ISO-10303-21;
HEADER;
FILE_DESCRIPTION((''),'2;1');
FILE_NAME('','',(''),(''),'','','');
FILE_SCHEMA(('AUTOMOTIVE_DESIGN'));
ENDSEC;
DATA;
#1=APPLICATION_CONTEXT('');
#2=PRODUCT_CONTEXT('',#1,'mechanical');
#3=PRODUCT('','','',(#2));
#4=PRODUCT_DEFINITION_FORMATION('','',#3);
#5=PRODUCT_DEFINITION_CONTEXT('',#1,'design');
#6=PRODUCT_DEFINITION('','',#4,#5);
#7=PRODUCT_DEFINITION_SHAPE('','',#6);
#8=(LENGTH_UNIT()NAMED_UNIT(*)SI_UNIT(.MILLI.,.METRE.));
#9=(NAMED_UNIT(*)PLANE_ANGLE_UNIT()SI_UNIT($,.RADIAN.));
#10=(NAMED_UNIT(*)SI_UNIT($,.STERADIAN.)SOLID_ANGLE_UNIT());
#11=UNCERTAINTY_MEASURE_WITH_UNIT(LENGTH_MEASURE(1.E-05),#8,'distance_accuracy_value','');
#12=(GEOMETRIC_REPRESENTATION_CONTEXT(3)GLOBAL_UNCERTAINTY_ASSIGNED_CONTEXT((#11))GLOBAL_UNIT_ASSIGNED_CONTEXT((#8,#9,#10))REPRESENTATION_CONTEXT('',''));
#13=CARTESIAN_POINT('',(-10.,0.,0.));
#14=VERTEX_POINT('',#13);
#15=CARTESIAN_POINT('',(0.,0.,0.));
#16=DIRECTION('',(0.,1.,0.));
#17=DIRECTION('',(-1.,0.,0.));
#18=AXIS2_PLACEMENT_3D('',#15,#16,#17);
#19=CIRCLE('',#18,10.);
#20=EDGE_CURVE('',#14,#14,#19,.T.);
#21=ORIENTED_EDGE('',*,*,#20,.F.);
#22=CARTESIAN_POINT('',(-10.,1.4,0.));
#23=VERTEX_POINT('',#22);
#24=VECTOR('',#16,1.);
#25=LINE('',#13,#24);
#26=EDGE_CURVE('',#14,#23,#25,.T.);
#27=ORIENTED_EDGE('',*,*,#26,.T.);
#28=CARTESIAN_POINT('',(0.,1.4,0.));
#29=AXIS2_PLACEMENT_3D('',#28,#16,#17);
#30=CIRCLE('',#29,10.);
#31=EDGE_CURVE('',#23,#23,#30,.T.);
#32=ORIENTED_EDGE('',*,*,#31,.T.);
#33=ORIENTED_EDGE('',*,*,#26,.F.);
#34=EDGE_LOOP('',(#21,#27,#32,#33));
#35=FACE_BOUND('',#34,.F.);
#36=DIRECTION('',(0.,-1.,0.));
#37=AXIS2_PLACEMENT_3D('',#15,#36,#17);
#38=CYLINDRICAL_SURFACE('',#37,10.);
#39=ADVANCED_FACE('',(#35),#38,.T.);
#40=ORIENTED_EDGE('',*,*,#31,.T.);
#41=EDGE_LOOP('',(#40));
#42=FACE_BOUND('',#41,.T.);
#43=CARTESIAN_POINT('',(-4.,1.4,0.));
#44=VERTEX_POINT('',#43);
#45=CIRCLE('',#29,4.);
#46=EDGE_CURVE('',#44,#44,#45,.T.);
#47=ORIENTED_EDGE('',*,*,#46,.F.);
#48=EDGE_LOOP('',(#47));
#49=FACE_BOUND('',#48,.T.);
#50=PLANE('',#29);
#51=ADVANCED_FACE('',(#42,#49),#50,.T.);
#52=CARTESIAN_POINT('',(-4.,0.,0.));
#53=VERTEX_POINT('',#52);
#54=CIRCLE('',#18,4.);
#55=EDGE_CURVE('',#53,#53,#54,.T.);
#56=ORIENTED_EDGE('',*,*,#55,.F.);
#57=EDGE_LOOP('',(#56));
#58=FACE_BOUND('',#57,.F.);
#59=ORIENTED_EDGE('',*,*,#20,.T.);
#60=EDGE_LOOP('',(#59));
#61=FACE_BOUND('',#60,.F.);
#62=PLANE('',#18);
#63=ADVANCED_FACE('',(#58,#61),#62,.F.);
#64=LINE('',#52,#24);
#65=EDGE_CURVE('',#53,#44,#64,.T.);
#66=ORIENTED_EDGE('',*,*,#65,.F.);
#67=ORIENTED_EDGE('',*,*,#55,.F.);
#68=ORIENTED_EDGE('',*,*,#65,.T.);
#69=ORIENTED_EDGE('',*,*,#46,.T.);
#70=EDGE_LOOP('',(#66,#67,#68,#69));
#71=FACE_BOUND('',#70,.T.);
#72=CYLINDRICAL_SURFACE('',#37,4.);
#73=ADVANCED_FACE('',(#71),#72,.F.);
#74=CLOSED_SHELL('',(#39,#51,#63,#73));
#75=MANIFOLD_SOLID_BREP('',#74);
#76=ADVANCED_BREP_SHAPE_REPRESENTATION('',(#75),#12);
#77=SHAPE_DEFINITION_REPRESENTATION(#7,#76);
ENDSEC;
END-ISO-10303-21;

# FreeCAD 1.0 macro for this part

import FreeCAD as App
import Part
import Sketcher

V = App.Vector
Q = App.Units.Quantity

doc = App.newDocument("Part")
body = doc.addObject("PartDesign::Body", "Body")

sketch1 = body.newObject("Sketcher::SketchObject", "Sketch")
sketch1.AttachmentSupport = (doc.getObject("XZ_Plane"), [""])
sketch1.MapMode = "FlatFace"
sketch1.addGeometry(Part.Circle(V(0, 0, 0), V(0, 0, 1), 10), False)
sketch1.addGeometry(Part.Circle(V(0, 0, 0), V(0, 0, 1), 4), False)
sketch1.addConstraint(Sketcher.Constraint("Coincident", 0, 3, -1, 1))
sketch1.addConstraint(Sketcher.Constraint("Coincident", 1, 3, -1, 1))
sketch1.addConstraint(Sketcher.Constraint("Diameter", 0, Q("20 mm")))
sketch1.addConstraint(Sketcher.Constraint("Diameter", 1, Q("8 mm")))
pad1 = body.newObject("PartDesign::Pad", "Pad")
pad1.Profile = sketch1
pad1.Length = 1.4
pad1.Reversed = True

doc.recompute()
